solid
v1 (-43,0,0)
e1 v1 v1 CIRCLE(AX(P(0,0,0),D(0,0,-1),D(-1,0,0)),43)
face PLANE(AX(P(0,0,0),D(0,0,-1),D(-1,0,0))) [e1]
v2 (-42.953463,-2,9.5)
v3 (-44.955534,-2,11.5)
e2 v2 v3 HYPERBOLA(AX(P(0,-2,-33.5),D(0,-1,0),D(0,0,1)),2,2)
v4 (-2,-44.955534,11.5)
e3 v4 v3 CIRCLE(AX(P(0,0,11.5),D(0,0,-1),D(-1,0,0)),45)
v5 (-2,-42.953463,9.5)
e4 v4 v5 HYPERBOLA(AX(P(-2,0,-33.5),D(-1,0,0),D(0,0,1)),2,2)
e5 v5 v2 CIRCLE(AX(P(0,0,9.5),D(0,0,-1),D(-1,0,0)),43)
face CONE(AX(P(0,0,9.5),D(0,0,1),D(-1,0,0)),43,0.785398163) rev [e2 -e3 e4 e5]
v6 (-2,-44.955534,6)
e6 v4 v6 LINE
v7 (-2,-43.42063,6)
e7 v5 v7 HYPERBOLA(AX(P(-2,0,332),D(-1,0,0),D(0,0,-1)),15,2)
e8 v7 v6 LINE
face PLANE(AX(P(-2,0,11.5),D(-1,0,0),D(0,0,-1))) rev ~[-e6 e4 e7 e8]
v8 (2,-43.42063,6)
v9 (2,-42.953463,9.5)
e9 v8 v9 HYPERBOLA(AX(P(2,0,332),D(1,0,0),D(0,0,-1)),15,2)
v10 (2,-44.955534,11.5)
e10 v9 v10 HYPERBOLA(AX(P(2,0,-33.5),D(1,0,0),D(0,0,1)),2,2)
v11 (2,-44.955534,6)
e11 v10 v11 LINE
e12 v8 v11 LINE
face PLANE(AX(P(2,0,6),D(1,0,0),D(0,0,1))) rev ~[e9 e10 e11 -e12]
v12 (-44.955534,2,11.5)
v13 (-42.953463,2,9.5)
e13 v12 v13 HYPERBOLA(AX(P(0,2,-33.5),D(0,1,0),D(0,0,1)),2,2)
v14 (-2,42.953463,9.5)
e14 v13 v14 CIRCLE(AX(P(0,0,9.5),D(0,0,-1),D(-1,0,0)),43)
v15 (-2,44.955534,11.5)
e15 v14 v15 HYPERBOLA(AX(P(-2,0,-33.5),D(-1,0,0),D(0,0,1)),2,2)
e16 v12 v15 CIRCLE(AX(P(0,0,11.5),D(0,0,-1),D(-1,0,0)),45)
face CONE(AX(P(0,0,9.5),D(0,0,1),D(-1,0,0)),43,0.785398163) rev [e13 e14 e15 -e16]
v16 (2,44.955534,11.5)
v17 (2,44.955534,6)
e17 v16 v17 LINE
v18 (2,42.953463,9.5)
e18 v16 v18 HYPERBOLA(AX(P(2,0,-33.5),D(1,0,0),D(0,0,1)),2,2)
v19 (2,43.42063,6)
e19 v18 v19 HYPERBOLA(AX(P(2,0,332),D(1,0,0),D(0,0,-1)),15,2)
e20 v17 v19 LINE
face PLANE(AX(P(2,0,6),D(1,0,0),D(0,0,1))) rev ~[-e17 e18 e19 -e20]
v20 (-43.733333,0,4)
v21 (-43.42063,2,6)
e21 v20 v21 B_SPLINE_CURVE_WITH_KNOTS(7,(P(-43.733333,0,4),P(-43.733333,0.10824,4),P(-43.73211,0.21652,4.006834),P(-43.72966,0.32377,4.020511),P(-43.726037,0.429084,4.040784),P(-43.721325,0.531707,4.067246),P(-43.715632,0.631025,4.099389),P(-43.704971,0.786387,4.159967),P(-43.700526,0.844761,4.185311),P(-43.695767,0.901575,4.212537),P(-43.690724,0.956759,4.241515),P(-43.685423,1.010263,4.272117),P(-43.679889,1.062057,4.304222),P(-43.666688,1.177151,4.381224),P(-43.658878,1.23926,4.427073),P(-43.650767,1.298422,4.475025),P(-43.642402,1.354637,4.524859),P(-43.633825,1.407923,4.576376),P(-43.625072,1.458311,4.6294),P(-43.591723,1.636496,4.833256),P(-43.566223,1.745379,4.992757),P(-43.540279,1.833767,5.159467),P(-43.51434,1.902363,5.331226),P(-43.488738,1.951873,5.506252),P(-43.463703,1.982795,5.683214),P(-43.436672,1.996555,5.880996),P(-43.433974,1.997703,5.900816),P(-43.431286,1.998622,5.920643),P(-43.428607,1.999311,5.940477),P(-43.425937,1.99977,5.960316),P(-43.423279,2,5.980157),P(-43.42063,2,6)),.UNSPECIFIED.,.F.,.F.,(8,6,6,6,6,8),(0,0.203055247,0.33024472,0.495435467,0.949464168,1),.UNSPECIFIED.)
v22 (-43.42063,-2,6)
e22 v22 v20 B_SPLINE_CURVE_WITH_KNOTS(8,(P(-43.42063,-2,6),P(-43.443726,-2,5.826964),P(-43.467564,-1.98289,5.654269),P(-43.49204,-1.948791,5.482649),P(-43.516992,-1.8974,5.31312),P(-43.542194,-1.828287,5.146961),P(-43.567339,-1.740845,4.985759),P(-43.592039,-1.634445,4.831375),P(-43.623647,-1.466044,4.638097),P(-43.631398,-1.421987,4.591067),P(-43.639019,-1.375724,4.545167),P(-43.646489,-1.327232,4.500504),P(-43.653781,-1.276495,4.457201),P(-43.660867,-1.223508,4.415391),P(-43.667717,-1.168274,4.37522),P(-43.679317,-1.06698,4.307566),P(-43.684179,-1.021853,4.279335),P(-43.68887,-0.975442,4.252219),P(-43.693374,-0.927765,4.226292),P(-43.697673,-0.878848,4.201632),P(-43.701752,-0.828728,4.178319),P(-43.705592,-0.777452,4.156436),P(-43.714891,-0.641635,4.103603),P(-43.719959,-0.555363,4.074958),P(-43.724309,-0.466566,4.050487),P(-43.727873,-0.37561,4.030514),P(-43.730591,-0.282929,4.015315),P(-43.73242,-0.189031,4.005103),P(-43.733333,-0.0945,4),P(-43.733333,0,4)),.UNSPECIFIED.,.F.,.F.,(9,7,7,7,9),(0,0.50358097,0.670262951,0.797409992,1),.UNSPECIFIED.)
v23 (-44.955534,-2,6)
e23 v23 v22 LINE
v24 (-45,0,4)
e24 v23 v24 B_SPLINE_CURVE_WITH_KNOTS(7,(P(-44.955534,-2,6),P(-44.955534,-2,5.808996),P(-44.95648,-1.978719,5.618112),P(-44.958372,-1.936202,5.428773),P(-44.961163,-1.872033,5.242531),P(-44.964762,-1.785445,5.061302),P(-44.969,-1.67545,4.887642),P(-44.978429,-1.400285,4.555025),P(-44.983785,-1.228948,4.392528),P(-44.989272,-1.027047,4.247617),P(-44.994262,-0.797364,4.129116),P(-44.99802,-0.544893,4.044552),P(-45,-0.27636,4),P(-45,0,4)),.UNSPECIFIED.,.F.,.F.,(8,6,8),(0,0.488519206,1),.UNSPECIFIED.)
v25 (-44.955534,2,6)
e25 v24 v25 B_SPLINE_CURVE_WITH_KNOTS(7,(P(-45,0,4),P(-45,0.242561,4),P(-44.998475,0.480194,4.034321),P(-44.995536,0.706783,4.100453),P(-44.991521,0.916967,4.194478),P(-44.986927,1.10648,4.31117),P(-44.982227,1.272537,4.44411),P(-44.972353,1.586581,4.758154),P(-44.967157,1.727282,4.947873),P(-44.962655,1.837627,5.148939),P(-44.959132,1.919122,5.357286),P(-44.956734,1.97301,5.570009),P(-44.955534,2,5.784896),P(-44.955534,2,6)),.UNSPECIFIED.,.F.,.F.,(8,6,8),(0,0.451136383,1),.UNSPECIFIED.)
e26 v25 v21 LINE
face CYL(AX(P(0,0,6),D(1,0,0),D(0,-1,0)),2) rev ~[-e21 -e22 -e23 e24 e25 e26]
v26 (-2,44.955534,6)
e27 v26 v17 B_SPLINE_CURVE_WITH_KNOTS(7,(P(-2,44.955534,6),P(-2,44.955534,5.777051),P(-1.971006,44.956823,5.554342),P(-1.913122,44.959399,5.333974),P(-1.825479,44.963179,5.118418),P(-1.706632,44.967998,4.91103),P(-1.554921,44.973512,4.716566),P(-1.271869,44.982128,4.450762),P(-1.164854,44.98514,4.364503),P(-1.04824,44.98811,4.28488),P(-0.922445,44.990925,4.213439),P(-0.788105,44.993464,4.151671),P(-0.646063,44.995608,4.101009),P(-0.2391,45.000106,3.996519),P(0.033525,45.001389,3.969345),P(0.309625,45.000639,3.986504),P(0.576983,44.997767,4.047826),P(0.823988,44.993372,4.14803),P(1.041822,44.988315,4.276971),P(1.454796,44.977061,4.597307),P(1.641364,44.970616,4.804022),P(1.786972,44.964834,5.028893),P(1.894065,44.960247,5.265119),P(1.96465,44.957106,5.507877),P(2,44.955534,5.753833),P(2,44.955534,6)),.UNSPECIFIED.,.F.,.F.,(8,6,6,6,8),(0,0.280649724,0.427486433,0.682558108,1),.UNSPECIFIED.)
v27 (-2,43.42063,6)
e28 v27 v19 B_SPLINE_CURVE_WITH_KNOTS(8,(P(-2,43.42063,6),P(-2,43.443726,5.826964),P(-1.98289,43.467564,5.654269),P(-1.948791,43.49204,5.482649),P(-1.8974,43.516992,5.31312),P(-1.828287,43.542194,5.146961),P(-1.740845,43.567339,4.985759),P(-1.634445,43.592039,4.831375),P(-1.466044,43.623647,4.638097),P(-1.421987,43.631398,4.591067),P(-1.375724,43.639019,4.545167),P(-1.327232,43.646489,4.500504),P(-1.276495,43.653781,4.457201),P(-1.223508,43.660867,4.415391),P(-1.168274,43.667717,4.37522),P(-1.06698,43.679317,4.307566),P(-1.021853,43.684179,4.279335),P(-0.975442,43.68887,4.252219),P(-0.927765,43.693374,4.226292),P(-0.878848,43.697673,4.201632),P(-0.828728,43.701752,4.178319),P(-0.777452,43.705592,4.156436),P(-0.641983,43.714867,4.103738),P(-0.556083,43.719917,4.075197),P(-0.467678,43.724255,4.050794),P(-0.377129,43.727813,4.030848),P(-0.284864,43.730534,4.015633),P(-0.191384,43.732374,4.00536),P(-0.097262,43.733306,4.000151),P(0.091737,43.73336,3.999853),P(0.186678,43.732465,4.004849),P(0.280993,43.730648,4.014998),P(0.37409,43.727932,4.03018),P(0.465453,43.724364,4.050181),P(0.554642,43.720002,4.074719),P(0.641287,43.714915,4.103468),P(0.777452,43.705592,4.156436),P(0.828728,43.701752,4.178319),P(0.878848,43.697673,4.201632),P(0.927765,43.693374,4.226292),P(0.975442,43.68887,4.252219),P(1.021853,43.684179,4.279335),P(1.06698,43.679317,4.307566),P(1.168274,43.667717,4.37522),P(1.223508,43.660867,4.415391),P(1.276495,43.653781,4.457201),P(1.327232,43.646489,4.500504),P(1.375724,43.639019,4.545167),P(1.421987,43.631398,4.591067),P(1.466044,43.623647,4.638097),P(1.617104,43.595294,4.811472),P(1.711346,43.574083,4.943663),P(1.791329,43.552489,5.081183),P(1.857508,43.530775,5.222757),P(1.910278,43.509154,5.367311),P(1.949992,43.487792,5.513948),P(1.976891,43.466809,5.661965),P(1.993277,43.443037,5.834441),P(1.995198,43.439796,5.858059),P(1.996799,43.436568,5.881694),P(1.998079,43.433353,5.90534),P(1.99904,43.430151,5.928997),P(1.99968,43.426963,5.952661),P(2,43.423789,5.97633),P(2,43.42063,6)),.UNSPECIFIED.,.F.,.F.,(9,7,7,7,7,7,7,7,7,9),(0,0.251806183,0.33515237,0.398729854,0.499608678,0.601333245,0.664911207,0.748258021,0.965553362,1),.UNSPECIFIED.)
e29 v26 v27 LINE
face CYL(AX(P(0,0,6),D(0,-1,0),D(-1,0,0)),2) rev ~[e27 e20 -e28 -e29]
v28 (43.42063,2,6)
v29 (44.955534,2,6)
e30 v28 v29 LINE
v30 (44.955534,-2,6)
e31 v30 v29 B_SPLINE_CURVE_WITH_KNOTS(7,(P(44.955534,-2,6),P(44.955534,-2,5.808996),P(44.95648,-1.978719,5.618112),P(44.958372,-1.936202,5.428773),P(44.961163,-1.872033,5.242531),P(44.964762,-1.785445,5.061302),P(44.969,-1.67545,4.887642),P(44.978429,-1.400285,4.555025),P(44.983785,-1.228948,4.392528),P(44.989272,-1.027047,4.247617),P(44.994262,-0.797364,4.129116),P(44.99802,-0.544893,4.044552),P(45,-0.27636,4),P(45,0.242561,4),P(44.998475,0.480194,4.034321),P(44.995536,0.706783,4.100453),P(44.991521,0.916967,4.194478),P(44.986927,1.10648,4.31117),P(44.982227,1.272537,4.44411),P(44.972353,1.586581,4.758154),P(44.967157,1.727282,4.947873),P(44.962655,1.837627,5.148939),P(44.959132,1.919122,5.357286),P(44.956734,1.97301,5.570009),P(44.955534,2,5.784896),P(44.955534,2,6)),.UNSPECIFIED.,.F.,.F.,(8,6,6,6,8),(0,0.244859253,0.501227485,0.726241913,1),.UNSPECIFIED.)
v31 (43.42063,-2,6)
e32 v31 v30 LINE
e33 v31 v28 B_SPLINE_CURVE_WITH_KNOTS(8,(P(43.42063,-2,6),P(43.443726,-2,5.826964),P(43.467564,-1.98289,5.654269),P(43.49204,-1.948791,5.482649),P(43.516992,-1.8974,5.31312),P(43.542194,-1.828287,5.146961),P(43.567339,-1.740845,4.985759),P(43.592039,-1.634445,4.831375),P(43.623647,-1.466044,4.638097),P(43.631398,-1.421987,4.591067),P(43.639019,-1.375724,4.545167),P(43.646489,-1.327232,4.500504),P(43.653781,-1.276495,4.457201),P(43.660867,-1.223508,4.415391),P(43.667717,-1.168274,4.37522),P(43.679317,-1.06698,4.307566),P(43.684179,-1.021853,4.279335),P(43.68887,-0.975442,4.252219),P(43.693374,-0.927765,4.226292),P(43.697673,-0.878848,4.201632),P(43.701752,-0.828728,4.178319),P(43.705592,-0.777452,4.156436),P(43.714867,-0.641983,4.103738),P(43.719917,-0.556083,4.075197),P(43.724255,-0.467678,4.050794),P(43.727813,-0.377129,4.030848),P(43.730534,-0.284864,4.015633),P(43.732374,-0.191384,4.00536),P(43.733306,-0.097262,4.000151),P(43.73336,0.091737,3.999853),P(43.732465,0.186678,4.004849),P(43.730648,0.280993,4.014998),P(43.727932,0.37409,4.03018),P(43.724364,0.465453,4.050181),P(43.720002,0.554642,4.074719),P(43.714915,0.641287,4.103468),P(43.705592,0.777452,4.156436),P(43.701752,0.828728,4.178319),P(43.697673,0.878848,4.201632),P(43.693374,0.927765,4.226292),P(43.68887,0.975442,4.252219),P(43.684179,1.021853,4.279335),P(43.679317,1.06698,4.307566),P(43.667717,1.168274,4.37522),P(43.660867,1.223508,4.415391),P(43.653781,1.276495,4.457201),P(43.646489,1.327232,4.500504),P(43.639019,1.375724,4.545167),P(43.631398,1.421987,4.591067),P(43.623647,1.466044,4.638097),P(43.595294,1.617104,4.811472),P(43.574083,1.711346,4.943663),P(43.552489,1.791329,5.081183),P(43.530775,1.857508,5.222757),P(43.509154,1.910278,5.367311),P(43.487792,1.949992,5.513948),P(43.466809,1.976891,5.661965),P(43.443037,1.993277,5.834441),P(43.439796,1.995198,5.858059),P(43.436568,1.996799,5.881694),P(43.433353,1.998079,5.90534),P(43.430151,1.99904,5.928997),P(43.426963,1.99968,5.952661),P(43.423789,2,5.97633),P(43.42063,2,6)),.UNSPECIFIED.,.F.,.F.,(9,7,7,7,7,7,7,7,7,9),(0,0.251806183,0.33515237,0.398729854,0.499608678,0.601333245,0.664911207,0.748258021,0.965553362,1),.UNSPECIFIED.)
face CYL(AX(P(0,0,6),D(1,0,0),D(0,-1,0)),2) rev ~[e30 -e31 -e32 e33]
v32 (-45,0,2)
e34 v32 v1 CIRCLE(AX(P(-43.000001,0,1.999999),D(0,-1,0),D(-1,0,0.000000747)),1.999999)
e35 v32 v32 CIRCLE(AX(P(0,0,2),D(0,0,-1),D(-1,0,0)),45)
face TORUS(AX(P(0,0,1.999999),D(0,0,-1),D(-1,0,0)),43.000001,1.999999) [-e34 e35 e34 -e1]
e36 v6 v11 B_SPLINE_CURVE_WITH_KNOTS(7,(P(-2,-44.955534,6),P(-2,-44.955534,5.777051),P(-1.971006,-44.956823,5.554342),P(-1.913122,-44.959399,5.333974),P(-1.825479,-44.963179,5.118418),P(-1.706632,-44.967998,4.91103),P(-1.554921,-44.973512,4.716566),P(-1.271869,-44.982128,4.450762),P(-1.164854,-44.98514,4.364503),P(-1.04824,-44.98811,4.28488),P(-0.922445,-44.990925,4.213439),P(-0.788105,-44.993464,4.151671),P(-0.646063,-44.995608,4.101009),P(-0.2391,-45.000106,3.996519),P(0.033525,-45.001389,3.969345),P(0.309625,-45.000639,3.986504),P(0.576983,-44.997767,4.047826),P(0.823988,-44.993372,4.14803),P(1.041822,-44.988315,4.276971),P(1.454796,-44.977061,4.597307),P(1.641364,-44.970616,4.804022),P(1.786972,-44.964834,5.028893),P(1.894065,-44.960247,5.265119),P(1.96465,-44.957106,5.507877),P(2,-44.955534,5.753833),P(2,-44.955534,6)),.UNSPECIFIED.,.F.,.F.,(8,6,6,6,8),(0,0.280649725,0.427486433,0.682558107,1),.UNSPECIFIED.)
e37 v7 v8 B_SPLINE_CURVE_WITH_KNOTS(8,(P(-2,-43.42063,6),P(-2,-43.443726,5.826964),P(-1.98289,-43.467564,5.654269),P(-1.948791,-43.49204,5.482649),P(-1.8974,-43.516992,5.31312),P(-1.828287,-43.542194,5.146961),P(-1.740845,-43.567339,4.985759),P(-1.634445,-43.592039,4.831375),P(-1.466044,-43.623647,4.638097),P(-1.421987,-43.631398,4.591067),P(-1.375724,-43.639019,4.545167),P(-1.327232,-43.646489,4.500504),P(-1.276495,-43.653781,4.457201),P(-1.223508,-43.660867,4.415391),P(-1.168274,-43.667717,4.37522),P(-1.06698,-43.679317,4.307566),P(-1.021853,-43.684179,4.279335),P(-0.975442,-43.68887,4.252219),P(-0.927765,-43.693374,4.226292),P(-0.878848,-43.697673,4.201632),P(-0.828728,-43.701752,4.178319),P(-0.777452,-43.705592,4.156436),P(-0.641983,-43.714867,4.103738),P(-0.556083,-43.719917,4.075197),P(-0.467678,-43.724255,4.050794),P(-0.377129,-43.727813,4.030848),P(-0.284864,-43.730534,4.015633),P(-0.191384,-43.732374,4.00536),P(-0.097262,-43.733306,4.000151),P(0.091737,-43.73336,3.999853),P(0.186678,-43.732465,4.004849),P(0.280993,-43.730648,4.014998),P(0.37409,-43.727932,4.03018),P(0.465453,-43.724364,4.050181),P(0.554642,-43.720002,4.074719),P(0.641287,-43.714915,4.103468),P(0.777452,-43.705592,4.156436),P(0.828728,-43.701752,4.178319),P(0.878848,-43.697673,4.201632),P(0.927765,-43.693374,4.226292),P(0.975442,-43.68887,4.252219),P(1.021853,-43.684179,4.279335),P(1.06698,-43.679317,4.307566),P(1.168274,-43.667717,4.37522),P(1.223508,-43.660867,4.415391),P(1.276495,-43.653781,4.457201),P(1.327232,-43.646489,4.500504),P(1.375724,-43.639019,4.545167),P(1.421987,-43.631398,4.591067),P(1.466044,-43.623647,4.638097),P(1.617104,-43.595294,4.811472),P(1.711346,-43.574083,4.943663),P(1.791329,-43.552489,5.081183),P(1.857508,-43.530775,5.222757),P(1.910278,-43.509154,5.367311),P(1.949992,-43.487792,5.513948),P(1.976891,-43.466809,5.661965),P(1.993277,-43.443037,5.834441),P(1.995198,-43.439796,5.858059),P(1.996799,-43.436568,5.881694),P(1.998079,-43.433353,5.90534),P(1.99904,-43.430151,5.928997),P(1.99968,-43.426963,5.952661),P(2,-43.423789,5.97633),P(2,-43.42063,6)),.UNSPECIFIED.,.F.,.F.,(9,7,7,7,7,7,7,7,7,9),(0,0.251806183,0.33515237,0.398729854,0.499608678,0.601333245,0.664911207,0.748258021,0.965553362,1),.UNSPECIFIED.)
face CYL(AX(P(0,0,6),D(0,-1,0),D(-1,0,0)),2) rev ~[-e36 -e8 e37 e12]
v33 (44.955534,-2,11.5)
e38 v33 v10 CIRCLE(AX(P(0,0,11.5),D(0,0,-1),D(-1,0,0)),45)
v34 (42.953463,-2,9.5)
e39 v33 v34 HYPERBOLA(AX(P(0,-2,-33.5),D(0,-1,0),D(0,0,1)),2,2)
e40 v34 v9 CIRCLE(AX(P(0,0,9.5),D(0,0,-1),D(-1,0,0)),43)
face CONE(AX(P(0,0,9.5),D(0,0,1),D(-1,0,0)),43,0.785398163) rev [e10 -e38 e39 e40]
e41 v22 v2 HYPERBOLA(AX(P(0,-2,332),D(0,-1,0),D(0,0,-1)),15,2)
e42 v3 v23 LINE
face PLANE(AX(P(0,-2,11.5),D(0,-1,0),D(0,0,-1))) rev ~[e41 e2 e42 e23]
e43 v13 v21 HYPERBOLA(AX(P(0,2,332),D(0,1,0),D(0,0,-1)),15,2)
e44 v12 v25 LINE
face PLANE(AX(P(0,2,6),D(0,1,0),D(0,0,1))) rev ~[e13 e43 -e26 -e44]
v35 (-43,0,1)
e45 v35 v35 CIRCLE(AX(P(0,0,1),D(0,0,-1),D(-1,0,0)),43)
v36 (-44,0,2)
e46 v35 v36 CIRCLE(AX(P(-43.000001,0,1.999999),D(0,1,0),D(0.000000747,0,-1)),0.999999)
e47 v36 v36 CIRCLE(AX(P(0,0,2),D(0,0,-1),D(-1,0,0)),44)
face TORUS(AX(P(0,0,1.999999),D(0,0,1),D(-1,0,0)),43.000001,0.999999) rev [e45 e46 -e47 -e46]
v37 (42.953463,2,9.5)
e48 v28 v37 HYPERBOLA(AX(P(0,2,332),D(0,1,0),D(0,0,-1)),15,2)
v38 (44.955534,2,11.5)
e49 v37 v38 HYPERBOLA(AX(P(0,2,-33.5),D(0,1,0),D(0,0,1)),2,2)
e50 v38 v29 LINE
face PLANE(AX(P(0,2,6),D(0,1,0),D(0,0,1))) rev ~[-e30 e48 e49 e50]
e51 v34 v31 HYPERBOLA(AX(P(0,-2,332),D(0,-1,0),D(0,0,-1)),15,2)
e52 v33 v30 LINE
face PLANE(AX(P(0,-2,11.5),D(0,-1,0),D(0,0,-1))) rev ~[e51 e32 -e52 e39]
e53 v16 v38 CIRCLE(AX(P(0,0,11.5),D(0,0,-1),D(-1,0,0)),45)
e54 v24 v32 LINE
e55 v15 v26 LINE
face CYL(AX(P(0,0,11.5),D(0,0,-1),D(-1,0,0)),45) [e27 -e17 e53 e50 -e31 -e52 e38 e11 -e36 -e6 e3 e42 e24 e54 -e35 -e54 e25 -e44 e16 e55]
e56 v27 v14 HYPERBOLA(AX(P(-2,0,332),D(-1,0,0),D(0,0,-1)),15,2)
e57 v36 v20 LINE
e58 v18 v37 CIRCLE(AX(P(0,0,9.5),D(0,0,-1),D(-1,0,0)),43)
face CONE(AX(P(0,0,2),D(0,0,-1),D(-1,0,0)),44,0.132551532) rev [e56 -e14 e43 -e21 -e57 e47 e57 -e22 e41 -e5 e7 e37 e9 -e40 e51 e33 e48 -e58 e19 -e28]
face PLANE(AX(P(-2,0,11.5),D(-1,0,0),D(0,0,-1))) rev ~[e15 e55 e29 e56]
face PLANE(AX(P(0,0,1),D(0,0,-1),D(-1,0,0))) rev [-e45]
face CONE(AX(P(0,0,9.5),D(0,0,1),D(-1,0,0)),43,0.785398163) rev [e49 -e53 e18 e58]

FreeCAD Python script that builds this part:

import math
import FreeCAD as App
import Part
import Sketcher
from FreeCAD import Vector
Q = App.Units.Quantity

doc = App.newDocument("Part")
body = doc.addObject("PartDesign::Body", "Body")

sketch1 = body.newObject("Sketcher::SketchObject", "Sketch")
sketch1.AttachmentSupport = (doc.getObject("XZ_Plane"), [""])
sketch1.MapMode = "FlatFace"
sketch1.addGeometry([
    Part.LineSegment(Vector(-43, 9.5, 0), Vector(-45, 11.5, 0)),
    Part.LineSegment(Vector(-45, 11.5, 0), Vector(-45, 2, 0)),
    Part.ArcOfCircle(Part.Circle(Vector(-43, 2, 0), Vector(0, 0, 1), 2), math.radians(180), math.radians(270)),
    Part.LineSegment(Vector(-43, 0, 0), Vector(0, 0, 0)),
    Part.LineSegment(Vector(0, 0, 0), Vector(0, 1, 0)),
    Part.LineSegment(Vector(0, 1, 0), Vector(-43, 1, 0)),
    Part.ArcOfCircle(Part.Circle(Vector(-43, 2, 0), Vector(0, 0, 1), 1), math.radians(180), math.radians(270)),
    Part.LineSegment(Vector(-44, 2, 0), Vector(-43, 9.5, 0)),
], False)
sketch1.addConstraint([
    Sketcher.Constraint("Coincident", 0, 2, 1, 1),
    Sketcher.Constraint("Tangent", 1, 2, 2, 1),
    Sketcher.Constraint("Tangent", 2, 2, 3, 1),
    Sketcher.Constraint("Coincident", 3, 2, 4, 1),
    Sketcher.Constraint("Coincident", 4, 2, 5, 1),
    Sketcher.Constraint("Tangent", 5, 2, 6, 2),
    Sketcher.Constraint("Coincident", 6, 1, 7, 1),
    Sketcher.Constraint("Coincident", 7, 2, 0, 1),
    Sketcher.Constraint("Vertical", 1),
    Sketcher.Constraint("Horizontal", 3),
    Sketcher.Constraint("Vertical", 4),
    Sketcher.Constraint("Horizontal", 5),
    Sketcher.Constraint("Coincident", 3, 2, -1, 1),
    Sketcher.Constraint("Coincident", 6, 3, 2, 3),
    Sketcher.Constraint("Horizontal", 1, 2, 6, 1),
    Sketcher.Constraint("Vertical", 5, 2, 7, 2),
    Sketcher.Constraint("Radius", 2, 1.999999),
    Sketcher.Constraint("Radius", 6, 0.999999),
    Sketcher.Constraint("DistanceX", 3, 1, 3, 2, 43.0),
    Sketcher.Constraint("Angle", 0, Q("135 deg")),
    Sketcher.Constraint("DistanceY", 1, 2, 1, 1, 9.5),
])
revolution = body.newObject("PartDesign::Revolution", "Revolution")
revolution.Profile = sketch1
revolution.ReferenceAxis = (sketch1, ["V_Axis"])
revolution.Angle = 360

sketch2 = body.newObject("Sketcher::SketchObject", "Sketch001")
sketch2.AttachmentSupport = (doc.getObject("XZ_Plane"), [""])
sketch2.MapMode = "FlatFace"
sketch2.addGeometry([
    Part.LineSegment(Vector(-2, 11.5, 0), Vector(-2, 6, 0)),
    Part.ArcOfCircle(Part.Circle(Vector(0, 6, 0), Vector(0, 0, 1), 2), math.radians(180), math.radians(360)),
    Part.LineSegment(Vector(2, 6, 0), Vector(2, 11.5, 0)),
    Part.LineSegment(Vector(2, 11.5, 0), Vector(-2, 11.5, 0)),
], False)
sketch2.addConstraint([
    Sketcher.Constraint("Tangent", 0, 2, 1, 1),
    Sketcher.Constraint("Tangent", 1, 2, 2, 1),
    Sketcher.Constraint("Coincident", 2, 2, 3, 1),
    Sketcher.Constraint("Coincident", 3, 2, 0, 1),
    Sketcher.Constraint("Vertical", 0),
    Sketcher.Constraint("Vertical", 2),
    Sketcher.Constraint("Horizontal", 3),
    Sketcher.Constraint("PointOnObject", 1, 3, -2),
    Sketcher.Constraint("Radius", 1, 2.0),
    Sketcher.Constraint("DistanceY", 0, 2, 0, 1, 5.5),
    Sketcher.Constraint("DistanceY", -1, 1, 1, 3, 6.0),
])
pocket1 = body.newObject("PartDesign::Pocket", "Pocket")
pocket1.Profile = sketch2
pocket1.Length = 100
pocket1.Midplane = True

sketch3 = body.newObject("Sketcher::SketchObject", "Sketch002")
sketch3.AttachmentSupport = (doc.getObject("YZ_Plane"), [""])
sketch3.MapMode = "FlatFace"
sketch3.addGeometry([
    Part.LineSegment(Vector(-2, 11.5, 0), Vector(-2, 6, 0)),
    Part.ArcOfCircle(Part.Circle(Vector(0, 6, 0), Vector(0, 0, 1), 2), math.radians(180), math.radians(360)),
    Part.LineSegment(Vector(2, 6, 0), Vector(2, 11.5, 0)),
    Part.LineSegment(Vector(2, 11.5, 0), Vector(-2, 11.5, 0)),
], False)
sketch3.addConstraint([
    Sketcher.Constraint("Tangent", 0, 2, 1, 1),
    Sketcher.Constraint("Tangent", 1, 2, 2, 1),
    Sketcher.Constraint("Coincident", 2, 2, 3, 1),
    Sketcher.Constraint("Coincident", 3, 2, 0, 1),
    Sketcher.Constraint("Vertical", 0),
    Sketcher.Constraint("Vertical", 2),
    Sketcher.Constraint("Horizontal", 3),
    Sketcher.Constraint("PointOnObject", 1, 3, -2),
    Sketcher.Constraint("Radius", 1, 2.0),
    Sketcher.Constraint("DistanceY", 0, 2, 0, 1, 5.5),
    Sketcher.Constraint("DistanceY", -1, 1, 1, 3, 6.0),
])
pocket2 = body.newObject("PartDesign::Pocket", "Pocket001")
pocket2.Profile = sketch3
pocket2.Length = 100
pocket2.Midplane = True

doc.recompute()
